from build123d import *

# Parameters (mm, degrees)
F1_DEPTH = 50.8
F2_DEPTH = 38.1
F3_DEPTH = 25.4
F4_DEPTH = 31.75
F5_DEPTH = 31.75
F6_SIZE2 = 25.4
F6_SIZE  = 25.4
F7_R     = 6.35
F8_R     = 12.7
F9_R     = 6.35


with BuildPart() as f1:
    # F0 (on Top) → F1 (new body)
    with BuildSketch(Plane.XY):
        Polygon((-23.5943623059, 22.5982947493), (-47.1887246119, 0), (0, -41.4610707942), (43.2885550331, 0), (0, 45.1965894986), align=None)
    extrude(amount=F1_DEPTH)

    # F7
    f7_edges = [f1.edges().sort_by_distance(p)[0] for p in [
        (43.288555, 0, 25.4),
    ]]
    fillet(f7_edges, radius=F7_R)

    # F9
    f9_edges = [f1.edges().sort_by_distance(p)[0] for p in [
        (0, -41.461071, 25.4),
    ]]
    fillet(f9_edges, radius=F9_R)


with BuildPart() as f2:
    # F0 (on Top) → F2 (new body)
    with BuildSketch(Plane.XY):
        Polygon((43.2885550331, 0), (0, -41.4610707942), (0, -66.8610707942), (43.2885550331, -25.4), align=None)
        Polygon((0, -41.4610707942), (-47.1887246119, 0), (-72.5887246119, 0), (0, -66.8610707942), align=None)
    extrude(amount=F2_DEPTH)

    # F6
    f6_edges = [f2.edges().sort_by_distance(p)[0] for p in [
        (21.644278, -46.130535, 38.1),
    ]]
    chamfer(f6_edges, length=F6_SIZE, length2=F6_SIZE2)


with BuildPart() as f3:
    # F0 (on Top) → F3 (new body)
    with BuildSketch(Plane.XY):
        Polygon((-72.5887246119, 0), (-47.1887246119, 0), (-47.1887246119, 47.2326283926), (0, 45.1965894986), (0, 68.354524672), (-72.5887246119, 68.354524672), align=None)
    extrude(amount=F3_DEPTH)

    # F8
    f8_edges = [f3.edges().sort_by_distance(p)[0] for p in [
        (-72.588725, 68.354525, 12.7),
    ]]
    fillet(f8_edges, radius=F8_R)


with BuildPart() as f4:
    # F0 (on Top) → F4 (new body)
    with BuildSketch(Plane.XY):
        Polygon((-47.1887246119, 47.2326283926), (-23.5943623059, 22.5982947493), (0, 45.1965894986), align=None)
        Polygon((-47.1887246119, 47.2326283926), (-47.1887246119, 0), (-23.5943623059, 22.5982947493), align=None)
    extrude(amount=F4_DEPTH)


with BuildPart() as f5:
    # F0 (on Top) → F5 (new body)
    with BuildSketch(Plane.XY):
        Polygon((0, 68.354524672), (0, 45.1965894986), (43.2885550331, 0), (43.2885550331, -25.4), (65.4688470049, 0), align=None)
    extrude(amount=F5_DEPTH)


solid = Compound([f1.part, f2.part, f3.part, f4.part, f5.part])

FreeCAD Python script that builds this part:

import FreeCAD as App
import Part
import Sketcher

V = App.Vector
Q = App.Units.Quantity


def edges_at(feature, points):
    """Names of the edges that pass closest to the given points."""
    edges = feature.Shape.Edges
    near = lambda p: min(range(len(edges)), key=lambda i: edges[i].distToShape(Part.Vertex(*p))[0])
    return sorted({f"Edge{near(p) + 1}" for p in points})

doc = App.newDocument("Part")
params = doc.addObject("Spreadsheet::Sheet", "Params")
for row, (alias, value) in enumerate([
    ("pad1_length", "2 in"),
    ("fillet_radius", "0.25 in"),
    ("fillet2_radius", "0.25 in"),
    ("sketch2_width", "1 in"),
    ("pad2_length", "1.5 in"),
    ("chamfer_size", "1 in"),
    ("chamfer_size2", "1 in"),
    ("sketch3_width", "1 in"),
    ("pad3_length", "1 in"),
    ("fillet3_radius", "0.5 in"),
    ("pad4_length", "1.25 in"),
    ("sketch5_height", "1 in"),
    ("pad5_length", "1.25 in"),
], start=1):
    params.set(f"A{row}", alias)
    params.set(f"B{row}", "=" + value)
    params.setAlias(f"B{row}", alias)

body = doc.addObject("PartDesign::Body", "Body")

# Sketch on XY plane
sketch1 = doc.addObject("Sketcher::SketchObject", "Sketch")
body.addObject(sketch1)
sketch1.AttachmentSupport = (doc.XY_Plane, [""])
sketch1.MapMode = "FlatFace"
sketch1.addGeometry([
    Part.LineSegment(V(-24, 23, 0), V(-47, 0, 0)),  # 0
    Part.LineSegment(V(-47, 0, 0), V(0, -41, 0)),  # 1
    Part.LineSegment(V(0, -41, 0), V(43, 0, 0)),  # 2
    Part.LineSegment(V(43, 0, 0), V(0, 45, 0)),  # 3
    Part.LineSegment(V(0, 45, 0), V(-24, 23, 0)),  # 4
], False)
sketch1.addConstraint([
    Sketcher.Constraint("Coincident", 0, 2, 1, 1),
    Sketcher.Constraint("Coincident", 1, 2, 2, 1),
    Sketcher.Constraint("Coincident", 2, 2, 3, 1),
    Sketcher.Constraint("Coincident", 3, 2, 4, 1),
    Sketcher.Constraint("Coincident", 4, 2, 0, 1),
    Sketcher.Constraint("PointOnObject", 0, 2, -1),
    Sketcher.Constraint("PointOnObject", 1, 2, -2),
    Sketcher.Constraint("PointOnObject", 2, 2, -1),
    Sketcher.Constraint("PointOnObject", 3, 2, -2),
    Sketcher.Constraint("Parallel", 0, 2),
    Sketcher.Constraint("Perpendicular", 2, 3),
    Sketcher.Constraint("Perpendicular", 3, 4),
    Sketcher.Constraint("Equal", 0, 4),
    Sketcher.Constraint("Distance", 3, Q("62.58299 mm")),
    Sketcher.Constraint("DistanceY", 1, 2, -1, 1, Q("41.461071 mm")),
])
pad1 = doc.addObject("PartDesign::Pad", "Pad")
body.addObject(pad1)
pad1.Profile = sketch1
pad1.setExpression("Length", "Params.pad1_length")
doc.recompute()

fillet = doc.addObject("PartDesign::Fillet", "Fillet")
body.addObject(fillet)
fillet.Base = (pad1, edges_at(pad1, [(43.289, 0, 25.4)]))
fillet.setExpression("Radius", "Params.fillet_radius")
doc.recompute()

fillet2 = doc.addObject("PartDesign::Fillet", "Fillet001")
body.addObject(fillet2)
fillet2.Base = (fillet, edges_at(fillet, [(0, -41.461, 25.4)]))
fillet2.setExpression("Radius", "Params.fillet2_radius")
body2 = doc.addObject("PartDesign::Body", "Body001")

# Sketch on XY plane
sketch2 = doc.addObject("Sketcher::SketchObject", "Sketch001")
body2.addObject(sketch2)
sketch2.AttachmentSupport = (doc.getObject("XY_Plane001"), [""])
sketch2.MapMode = "FlatFace"
sketch2.addGeometry([
    Part.LineSegment(V(43, 0, 0), V(0, -41, 0)),  # 0
    Part.LineSegment(V(0, -41, 0), V(-47, 0, 0)),  # 1
    Part.LineSegment(V(-47, 0, 0), V(-73, 0, 0)),  # 2
    Part.LineSegment(V(-73, 0, 0), V(0, -67, 0)),  # 3
    Part.LineSegment(V(0, -67, 0), V(43, -25, 0)),  # 4
    Part.LineSegment(V(43, -25, 0), V(43, 0, 0)),  # 5
], False)
sketch2.addConstraint([
    Sketcher.Constraint("Coincident", 0, 2, 1, 1),
    Sketcher.Constraint("Coincident", 1, 2, 2, 1),
    Sketcher.Constraint("Coincident", 2, 2, 3, 1),
    Sketcher.Constraint("Coincident", 3, 2, 4, 1),
    Sketcher.Constraint("Coincident", 4, 2, 5, 1),
    Sketcher.Constraint("Coincident", 5, 2, 0, 1),
    Sketcher.Constraint("Horizontal", 2),
    Sketcher.Constraint("Vertical", 5),
    Sketcher.Constraint("PointOnObject", 0, 2, -2),
    Sketcher.Constraint("PointOnObject", 1, 2, -1),
    Sketcher.Constraint("PointOnObject", 3, 2, -2),
    Sketcher.Constraint("PointOnObject", 5, 2, -1),
    Sketcher.Constraint("Parallel", 0, 4),
    Sketcher.Constraint("Equal", 2, 5),
    Sketcher.Constraint("DistanceX", 2, 2, 2, 1, Q("1 in")),
    Sketcher.Constraint("DistanceY", 0, 2, -1, 1, Q("41.461071 mm")),
    Sketcher.Constraint("DistanceX", 1, 2, 4, 2, Q("90.47728 mm")),
    Sketcher.Constraint("Distance", 0, Q("59.940966 mm")),
])
sketch2.setExpression("Constraints[14]", "Params.sketch2_width")
pad2 = doc.addObject("PartDesign::Pad", "Pad001")
body2.addObject(pad2)
pad2.Profile = sketch2
pad2.setExpression("Length", "Params.pad2_length")
doc.recompute()

chamfer = doc.addObject("PartDesign::Chamfer", "Chamfer")
body2.addObject(chamfer)
chamfer.Base = (pad2, edges_at(pad2, [(21.644, -46.131, 38.1)]))
chamfer.ChamferType = "Two distances"
chamfer.setExpression("Size", "Params.chamfer_size")
chamfer.setExpression("Size2", "Params.chamfer_size2")
body3 = doc.addObject("PartDesign::Body", "Body002")

# Sketch on XY plane
sketch3 = doc.addObject("Sketcher::SketchObject", "Sketch002")
body3.addObject(sketch3)
sketch3.AttachmentSupport = (doc.getObject("XY_Plane002"), [""])
sketch3.MapMode = "FlatFace"
sketch3.addGeometry([
    Part.LineSegment(V(-73, 0, 0), V(-47, 0, 0)),  # 0
    Part.LineSegment(V(-47, 0, 0), V(-47, 47, 0)),  # 1
    Part.LineSegment(V(-47, 47, 0), V(0, 45, 0)),  # 2
    Part.LineSegment(V(0, 45, 0), V(0, 68, 0)),  # 3
    Part.LineSegment(V(0, 68, 0), V(-73, 68, 0)),  # 4
    Part.LineSegment(V(-73, 68, 0), V(-73, 0, 0)),  # 5
], False)
sketch3.addConstraint([
    Sketcher.Constraint("Coincident", 0, 2, 1, 1),
    Sketcher.Constraint("Coincident", 1, 2, 2, 1),
    Sketcher.Constraint("Coincident", 2, 2, 3, 1),
    Sketcher.Constraint("Coincident", 3, 2, 4, 1),
    Sketcher.Constraint("Coincident", 4, 2, 5, 1),
    Sketcher.Constraint("Coincident", 5, 2, 0, 1),
    Sketcher.Constraint("Horizontal", 0),
    Sketcher.Constraint("Vertical", 1),
    Sketcher.Constraint("Vertical", 3),
    Sketcher.Constraint("Horizontal", 4),
    Sketcher.Constraint("Vertical", 5),
    Sketcher.Constraint("PointOnObject", 0, 2, -1),
    Sketcher.Constraint("PointOnObject", 2, 2, -2),
    Sketcher.Constraint("DistanceX", 0, 1, 0, 2, Q("1 in")),
    Sketcher.Constraint("DistanceY", 1, 1, 1, 2, Q("47.232628 mm")),
    Sketcher.Constraint("Distance", 2, Q("47.232628 mm")),
    Sketcher.Constraint("DistanceX", 4, 2, 4, 1, Q("72.588725 mm")),
    Sketcher.Constraint("DistanceY", 3, 1, 3, 2, Q("23.157935 mm")),
])
sketch3.setExpression("Constraints[13]", "Params.sketch3_width")
pad3 = doc.addObject("PartDesign::Pad", "Pad002")
body3.addObject(pad3)
pad3.Profile = sketch3
pad3.setExpression("Length", "Params.pad3_length")
doc.recompute()

fillet3 = doc.addObject("PartDesign::Fillet", "Fillet002")
body3.addObject(fillet3)
fillet3.Base = (pad3, edges_at(pad3, [(-72.589, 68.355, 12.7)]))
fillet3.setExpression("Radius", "Params.fillet3_radius")
body4 = doc.addObject("PartDesign::Body", "Body003")

# Sketch on XY plane
sketch4 = doc.addObject("Sketcher::SketchObject", "Sketch003")
body4.addObject(sketch4)
sketch4.AttachmentSupport = (doc.getObject("XY_Plane003"), [""])
sketch4.MapMode = "FlatFace"
sketch4.addGeometry([
    Part.LineSegment(V(-24, 23, 0), V(0, 45, 0)),
    Part.LineSegment(V(0, 45, 0), V(-47, 47, 0)),
    Part.LineSegment(V(-47, 47, 0), V(-47, 0, 0)),
    Part.LineSegment(V(-47, 0, 0), V(-24, 23, 0)),
], False)
sketch4.addConstraint([
    Sketcher.Constraint("Coincident", 0, 2, 1, 1),
    Sketcher.Constraint("Coincident", 1, 2, 2, 1),
    Sketcher.Constraint("Coincident", 2, 2, 3, 1),
    Sketcher.Constraint("Coincident", 3, 2, 0, 1),
    Sketcher.Constraint("Vertical", 2),
    Sketcher.Constraint("PointOnObject", 0, 2, -2),
    Sketcher.Constraint("PointOnObject", 2, 2, -1),
    Sketcher.Constraint("Parallel", 0, 3),
    Sketcher.Constraint("Equal", 0, 3),
    Sketcher.Constraint("DistanceY", 2, 2, 2, 1, Q("47.232628 mm")),
    Sketcher.Constraint("Distance", 1, Q("47.232628 mm")),
    Sketcher.Constraint("DistanceY", -1, 1, 0, 2, Q("45.196589 mm")),
])
pad4 = doc.addObject("PartDesign::Pad", "Pad003")
body4.addObject(pad4)
pad4.Profile = sketch4
pad4.setExpression("Length", "Params.pad4_length")
body5 = doc.addObject("PartDesign::Body", "Body004")

# Sketch on XY plane
sketch5 = doc.addObject("Sketcher::SketchObject", "Sketch004")
body5.addObject(sketch5)
sketch5.AttachmentSupport = (doc.getObject("XY_Plane004"), [""])
sketch5.MapMode = "FlatFace"
sketch5.addGeometry([
    Part.LineSegment(V(0, 68, 0), V(0, 45, 0)),  # 0
    Part.LineSegment(V(0, 45, 0), V(43, 0, 0)),  # 1
    Part.LineSegment(V(43, 0, 0), V(43, -25, 0)),  # 2
    Part.LineSegment(V(43, -25, 0), V(65, 0, 0)),  # 3
    Part.LineSegment(V(65, 0, 0), V(0, 68, 0)),  # 4
], False)
sketch5.addConstraint([
    Sketcher.Constraint("Coincident", 0, 2, 1, 1),
    Sketcher.Constraint("Coincident", 1, 2, 2, 1),
    Sketcher.Constraint("Coincident", 2, 2, 3, 1),
    Sketcher.Constraint("Coincident", 3, 2, 4, 1),
    Sketcher.Constraint("Coincident", 4, 2, 0, 1),
    Sketcher.Constraint("Vertical", 0),
    Sketcher.Constraint("Vertical", 2),
    Sketcher.Constraint("PointOnObject", 0, 2, -2),
    Sketcher.Constraint("PointOnObject", 1, 2, -1),
    Sketcher.Constraint("PointOnObject", 3, 2, -1),
    Sketcher.Constraint("Parallel", 1, 4),
    Sketcher.Constraint("DistanceY", 2, 2, 2, 1, Q("1 in")),
    Sketcher.Constraint("Distance", 1, Q("62.58299 mm")),
    Sketcher.Constraint("Distance", 3, Q("33.721289 mm")),
    Sketcher.Constraint("Distance", 4, Q("94.649411 mm")),
])
sketch5.setExpression("Constraints[11]", "Params.sketch5_height")
pad5 = doc.addObject("PartDesign::Pad", "Pad004")
body5.addObject(pad5)
pad5.Profile = sketch5
pad5.setExpression("Length", "Params.pad5_length")

doc.recompute()
